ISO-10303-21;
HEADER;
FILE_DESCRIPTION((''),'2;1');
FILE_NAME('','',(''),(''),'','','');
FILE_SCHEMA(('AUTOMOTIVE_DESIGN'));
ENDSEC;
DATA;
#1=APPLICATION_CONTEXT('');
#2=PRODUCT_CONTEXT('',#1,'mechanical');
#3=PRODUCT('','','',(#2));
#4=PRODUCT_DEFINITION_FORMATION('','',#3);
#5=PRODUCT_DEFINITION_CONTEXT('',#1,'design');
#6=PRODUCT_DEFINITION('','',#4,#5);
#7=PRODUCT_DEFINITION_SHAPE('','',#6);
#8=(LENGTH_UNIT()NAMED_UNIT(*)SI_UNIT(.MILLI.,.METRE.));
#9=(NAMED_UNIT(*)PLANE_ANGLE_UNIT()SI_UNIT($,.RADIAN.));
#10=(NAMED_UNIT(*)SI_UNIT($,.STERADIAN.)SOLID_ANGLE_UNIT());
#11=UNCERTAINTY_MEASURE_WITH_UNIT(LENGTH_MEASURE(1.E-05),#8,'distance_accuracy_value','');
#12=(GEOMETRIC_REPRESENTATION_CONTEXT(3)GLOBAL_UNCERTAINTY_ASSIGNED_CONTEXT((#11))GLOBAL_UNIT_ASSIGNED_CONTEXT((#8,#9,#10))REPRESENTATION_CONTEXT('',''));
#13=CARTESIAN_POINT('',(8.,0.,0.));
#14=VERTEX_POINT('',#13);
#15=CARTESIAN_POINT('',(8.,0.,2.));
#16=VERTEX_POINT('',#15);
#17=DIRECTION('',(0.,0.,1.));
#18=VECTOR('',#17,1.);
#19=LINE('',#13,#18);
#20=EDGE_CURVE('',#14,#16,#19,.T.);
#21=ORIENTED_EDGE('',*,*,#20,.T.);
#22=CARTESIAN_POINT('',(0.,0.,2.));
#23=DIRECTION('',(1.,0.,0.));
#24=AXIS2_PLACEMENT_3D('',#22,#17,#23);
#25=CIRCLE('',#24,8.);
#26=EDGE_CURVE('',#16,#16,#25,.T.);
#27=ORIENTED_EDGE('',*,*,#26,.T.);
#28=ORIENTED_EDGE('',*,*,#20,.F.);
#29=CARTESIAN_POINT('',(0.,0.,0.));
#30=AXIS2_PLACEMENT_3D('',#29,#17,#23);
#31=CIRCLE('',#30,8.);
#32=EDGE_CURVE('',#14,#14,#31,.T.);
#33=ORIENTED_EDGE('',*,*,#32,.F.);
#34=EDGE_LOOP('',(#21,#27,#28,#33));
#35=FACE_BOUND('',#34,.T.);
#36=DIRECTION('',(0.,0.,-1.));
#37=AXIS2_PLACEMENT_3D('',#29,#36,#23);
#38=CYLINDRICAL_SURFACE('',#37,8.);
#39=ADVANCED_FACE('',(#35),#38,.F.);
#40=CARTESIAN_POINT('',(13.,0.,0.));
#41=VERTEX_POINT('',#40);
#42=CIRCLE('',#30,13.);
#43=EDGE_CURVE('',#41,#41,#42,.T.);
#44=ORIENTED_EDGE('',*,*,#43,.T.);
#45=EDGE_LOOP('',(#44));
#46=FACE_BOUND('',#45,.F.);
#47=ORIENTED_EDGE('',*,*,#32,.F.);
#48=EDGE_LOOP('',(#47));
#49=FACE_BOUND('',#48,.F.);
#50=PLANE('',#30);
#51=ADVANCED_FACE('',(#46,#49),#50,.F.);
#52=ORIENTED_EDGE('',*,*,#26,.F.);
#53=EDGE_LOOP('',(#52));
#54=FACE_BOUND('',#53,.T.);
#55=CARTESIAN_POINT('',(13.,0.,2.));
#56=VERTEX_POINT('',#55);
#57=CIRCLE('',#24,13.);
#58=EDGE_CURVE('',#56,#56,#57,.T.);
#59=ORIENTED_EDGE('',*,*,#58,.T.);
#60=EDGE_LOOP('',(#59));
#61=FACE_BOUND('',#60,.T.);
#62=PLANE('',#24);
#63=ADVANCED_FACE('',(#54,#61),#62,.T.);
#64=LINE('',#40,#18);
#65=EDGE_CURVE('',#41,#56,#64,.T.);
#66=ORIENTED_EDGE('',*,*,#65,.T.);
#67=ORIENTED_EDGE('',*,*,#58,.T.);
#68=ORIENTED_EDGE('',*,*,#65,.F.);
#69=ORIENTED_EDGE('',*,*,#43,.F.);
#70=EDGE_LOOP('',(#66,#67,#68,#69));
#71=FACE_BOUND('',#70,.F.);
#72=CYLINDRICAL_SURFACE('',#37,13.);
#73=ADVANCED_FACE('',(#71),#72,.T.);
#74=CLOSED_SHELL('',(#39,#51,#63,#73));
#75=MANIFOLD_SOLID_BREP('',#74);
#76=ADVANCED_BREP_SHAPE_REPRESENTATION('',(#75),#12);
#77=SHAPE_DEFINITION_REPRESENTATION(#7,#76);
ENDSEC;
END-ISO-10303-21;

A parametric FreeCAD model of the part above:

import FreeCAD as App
import Part
import Sketcher
from FreeCAD import Vector

doc = App.newDocument("Part")
body = doc.addObject("PartDesign::Body", "Body")

# Sketch on XY plane
sketch1 = body.newObject("Sketcher::SketchObject", "Sketch")
sketch1.AttachmentSupport = (doc.getObject("XY_Plane"), [""])
sketch1.MapMode = "FlatFace"
sketch1.addGeometry(Part.Circle(Vector(0, 0, 0), Vector(0, 0, 1), 13), False)
sketch1.addGeometry(Part.Circle(Vector(0, 0, 0), Vector(0, 0, 1), 8), False)
sketch1.addConstraint(Sketcher.Constraint("Coincident", 0, 3, -1, 1))
sketch1.addConstraint(Sketcher.Constraint("Coincident", 1, 3, -1, 1))
sketch1.addConstraint(Sketcher.Constraint("Diameter", 0, 26.0))
sketch1.addConstraint(Sketcher.Constraint("Diameter", 1, 16.0))
pad1 = body.newObject("PartDesign::Pad", "Pad")
pad1.Profile = sketch1
pad1.Length = 2

doc.recompute()
